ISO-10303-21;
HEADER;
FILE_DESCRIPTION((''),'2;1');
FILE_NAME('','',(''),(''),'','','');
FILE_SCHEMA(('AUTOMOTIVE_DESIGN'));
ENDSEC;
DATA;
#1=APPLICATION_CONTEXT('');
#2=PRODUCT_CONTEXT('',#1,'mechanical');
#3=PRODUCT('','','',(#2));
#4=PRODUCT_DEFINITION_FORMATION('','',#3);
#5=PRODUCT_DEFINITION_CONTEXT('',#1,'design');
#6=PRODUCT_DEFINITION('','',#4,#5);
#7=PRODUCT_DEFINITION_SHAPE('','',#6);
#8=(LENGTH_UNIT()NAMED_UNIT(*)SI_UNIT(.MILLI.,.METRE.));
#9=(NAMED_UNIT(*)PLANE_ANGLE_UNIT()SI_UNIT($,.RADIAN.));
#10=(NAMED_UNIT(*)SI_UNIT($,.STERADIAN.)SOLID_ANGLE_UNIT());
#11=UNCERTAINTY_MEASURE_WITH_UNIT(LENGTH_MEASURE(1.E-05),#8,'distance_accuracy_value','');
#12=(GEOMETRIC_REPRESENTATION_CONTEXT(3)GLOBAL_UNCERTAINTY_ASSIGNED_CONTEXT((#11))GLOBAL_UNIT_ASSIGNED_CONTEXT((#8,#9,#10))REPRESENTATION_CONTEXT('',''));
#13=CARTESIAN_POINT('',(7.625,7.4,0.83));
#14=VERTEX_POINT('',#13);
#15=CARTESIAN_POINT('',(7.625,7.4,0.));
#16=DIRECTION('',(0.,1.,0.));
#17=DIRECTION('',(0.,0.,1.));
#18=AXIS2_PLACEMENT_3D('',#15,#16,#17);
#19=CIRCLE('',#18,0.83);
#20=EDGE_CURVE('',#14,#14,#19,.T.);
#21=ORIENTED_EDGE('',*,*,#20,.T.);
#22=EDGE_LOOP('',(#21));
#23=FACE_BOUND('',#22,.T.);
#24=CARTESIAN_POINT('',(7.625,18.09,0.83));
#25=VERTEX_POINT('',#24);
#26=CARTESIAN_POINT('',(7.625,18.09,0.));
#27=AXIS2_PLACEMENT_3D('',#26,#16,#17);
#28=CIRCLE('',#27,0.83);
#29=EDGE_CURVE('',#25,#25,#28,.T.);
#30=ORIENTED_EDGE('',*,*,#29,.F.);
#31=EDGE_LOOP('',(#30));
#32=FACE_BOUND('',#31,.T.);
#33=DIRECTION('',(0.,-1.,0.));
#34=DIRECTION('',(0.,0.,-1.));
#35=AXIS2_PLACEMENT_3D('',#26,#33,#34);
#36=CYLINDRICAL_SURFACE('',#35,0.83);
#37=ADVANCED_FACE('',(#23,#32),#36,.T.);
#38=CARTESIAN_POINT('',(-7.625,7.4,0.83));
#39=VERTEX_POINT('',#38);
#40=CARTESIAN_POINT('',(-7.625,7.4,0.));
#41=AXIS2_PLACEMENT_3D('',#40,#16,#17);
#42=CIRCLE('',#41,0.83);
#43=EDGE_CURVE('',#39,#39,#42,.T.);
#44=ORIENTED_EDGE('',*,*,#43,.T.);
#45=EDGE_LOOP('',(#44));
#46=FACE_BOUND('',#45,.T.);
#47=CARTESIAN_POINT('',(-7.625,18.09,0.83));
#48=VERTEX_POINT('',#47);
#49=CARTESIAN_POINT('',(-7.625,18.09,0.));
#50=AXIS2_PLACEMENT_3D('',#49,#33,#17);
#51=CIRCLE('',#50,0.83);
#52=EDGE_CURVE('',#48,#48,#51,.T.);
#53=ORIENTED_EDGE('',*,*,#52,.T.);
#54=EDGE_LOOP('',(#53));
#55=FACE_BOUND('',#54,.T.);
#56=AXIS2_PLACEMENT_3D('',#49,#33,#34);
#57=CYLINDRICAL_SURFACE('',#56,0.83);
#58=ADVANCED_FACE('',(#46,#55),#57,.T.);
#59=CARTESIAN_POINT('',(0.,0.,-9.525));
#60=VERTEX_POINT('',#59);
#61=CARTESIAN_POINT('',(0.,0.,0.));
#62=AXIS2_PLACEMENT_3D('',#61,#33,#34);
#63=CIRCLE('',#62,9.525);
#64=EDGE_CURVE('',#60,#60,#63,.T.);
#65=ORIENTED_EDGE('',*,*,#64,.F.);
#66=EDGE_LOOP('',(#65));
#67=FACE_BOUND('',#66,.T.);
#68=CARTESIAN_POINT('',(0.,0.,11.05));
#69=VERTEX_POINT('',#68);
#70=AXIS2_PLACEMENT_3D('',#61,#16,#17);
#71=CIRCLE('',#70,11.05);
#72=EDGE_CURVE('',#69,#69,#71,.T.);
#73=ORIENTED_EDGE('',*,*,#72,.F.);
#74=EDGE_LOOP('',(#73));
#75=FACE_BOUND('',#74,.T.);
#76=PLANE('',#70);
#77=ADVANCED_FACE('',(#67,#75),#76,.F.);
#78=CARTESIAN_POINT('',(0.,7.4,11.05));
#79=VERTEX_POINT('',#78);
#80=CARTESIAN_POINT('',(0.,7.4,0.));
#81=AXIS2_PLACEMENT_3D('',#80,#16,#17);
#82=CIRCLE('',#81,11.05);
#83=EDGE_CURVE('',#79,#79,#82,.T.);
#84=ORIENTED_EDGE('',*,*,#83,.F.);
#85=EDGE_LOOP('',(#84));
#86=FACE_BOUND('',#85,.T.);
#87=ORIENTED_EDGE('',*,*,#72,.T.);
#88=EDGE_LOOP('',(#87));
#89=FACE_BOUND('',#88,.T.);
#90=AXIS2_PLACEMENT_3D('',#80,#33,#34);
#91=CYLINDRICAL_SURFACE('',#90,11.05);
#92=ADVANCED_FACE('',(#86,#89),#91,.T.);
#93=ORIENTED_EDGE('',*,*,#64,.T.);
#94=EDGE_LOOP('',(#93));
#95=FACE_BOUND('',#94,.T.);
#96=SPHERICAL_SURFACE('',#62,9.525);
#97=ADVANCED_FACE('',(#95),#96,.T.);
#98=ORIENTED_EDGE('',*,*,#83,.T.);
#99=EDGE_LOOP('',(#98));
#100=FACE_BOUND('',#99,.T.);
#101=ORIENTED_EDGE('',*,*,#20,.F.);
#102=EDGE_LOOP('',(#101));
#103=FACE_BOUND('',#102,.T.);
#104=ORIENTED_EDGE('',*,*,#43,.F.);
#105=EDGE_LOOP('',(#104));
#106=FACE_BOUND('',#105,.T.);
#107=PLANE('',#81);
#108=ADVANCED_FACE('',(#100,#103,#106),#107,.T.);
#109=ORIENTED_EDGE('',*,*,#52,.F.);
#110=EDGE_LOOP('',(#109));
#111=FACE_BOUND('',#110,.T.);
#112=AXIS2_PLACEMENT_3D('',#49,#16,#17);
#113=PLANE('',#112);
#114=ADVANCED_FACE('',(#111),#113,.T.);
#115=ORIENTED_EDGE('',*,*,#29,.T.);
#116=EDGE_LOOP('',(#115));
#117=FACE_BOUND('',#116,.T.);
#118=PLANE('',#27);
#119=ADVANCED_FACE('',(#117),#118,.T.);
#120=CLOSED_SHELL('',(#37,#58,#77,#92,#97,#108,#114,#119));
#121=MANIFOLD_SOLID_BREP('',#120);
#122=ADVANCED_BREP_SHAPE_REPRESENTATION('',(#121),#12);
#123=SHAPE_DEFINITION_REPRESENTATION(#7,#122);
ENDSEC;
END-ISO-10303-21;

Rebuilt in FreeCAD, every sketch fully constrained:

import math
import FreeCAD as App
import Part
import Sketcher
from FreeCAD import Vector
Q = App.Units.Quantity

doc = App.newDocument("Part")
params = doc.addObject("Spreadsheet::Sheet", "Params")
for row, (alias, value) in enumerate([
    ("sketch1_diameter", "22.1 mm"),
    ("pad1_length", "7.4 mm"),
    ("revolution_angle", "360 deg"),
    ("sketch3_diameter", "1.66 mm"),
    ("pad2_length", "10.69 mm"),
], start=1):
    params.set(f"A{row}", alias)
    params.set(f"B{row}", "=" + value)
    params.setAlias(f"B{row}", alias)

body = doc.addObject("PartDesign::Body", "Body")

# Sketch on XZ plane
sketch1 = doc.addObject("Sketcher::SketchObject", "Sketch")
body.addObject(sketch1)
sketch1.AttachmentSupport = (doc.XZ_Plane, [""])
sketch1.MapMode = "FlatFace"
sketch1.addGeometry(Part.Circle(Vector(0, 0, 0), Vector(0, 0, 1), 11), False)
sketch1.addConstraint(Sketcher.Constraint("Coincident", 0, 3, -1, 1))
sketch1.addConstraint(Sketcher.Constraint("Diameter", 0, Q("22.1 mm")))
sketch1.setExpression("Constraints[1]", "Params.sketch1_diameter")
pad1 = doc.addObject("PartDesign::Pad", "Pad")
body.addObject(pad1)
pad1.Profile = sketch1
pad1.setExpression("Length", "Params.pad1_length")
pad1.Reversed = True

# Sketch on YZ plane
sketch2 = doc.addObject("Sketcher::SketchObject", "Sketch001")
body.addObject(sketch2)
sketch2.AttachmentSupport = (doc.YZ_Plane, [""])
sketch2.MapMode = "FlatFace"
sketch2.addGeometry(Part.LineSegment(Vector(0, 0, 0), Vector(-10, 0, 0)), False)
sketch2.addGeometry(Part.ArcOfCircle(Part.Circle(Vector(0, 0, 0), Vector(0, 0, 1), 10), math.radians(180), math.radians(270)), False)
sketch2.addGeometry(Part.LineSegment(Vector(0, -10, 0), Vector(0, 0, 0)), False)
sketch2.addConstraint(Sketcher.Constraint("Coincident", 0, 2, 1, 1))
sketch2.addConstraint(Sketcher.Constraint("Coincident", 1, 2, 2, 1))
sketch2.addConstraint(Sketcher.Constraint("Coincident", 2, 2, 0, 1))
sketch2.addConstraint(Sketcher.Constraint("Horizontal", 0))
sketch2.addConstraint(Sketcher.Constraint("Vertical", 2))
sketch2.addConstraint(Sketcher.Constraint("Coincident", 1, 3, -1, 1))
sketch2.addConstraint(Sketcher.Constraint("Coincident", 2, 2, -1, 1))
sketch2.addConstraint(Sketcher.Constraint("Radius", 1, Q("9.525 mm")))
revolution = doc.addObject("PartDesign::Revolution", "Revolution")
body.addObject(revolution)
revolution.Profile = sketch2
revolution.ReferenceAxis = (sketch2, ["H_Axis"])
revolution.setExpression("Angle", "Params.revolution_angle")

# Sketch on XZ plane
sketch3 = doc.addObject("Sketcher::SketchObject", "Sketch002")
body.addObject(sketch3)
sketch3.AttachmentSupport = (doc.XZ_Plane, [""])
sketch3.MapMode = "FlatFace"
sketch3.AttachmentOffset = App.Placement(Vector(0, 0, -7.4), App.Rotation())
sketch3.addGeometry(Part.Circle(Vector(7.6, 0, 0), Vector(0, 0, 1), 0.8), False)
sketch3.addConstraint(Sketcher.Constraint("PointOnObject", 0, 3, -1))
sketch3.addConstraint(Sketcher.Constraint("Diameter", 0, Q("1.66 mm")))
sketch3.addConstraint(Sketcher.Constraint("DistanceX", -1, 1, 0, 3, Q("7.625 mm")))
sketch3.setExpression("Constraints[1]", "Params.sketch3_diameter")
pad2 = doc.addObject("PartDesign::Pad", "Pad001")
body.addObject(pad2)
pad2.Profile = sketch3
pad2.setExpression("Length", "Params.pad2_length")
pad2.Reversed = True
doc.recompute()

mirrored = doc.addObject("PartDesign::Mirrored", "Mirrored")
body.addObject(mirrored)
mirrored.Originals = [pad2]
mirrored.MirrorPlane = (doc.YZ_Plane, [""])
body.Tip = mirrored

doc.recompute()
